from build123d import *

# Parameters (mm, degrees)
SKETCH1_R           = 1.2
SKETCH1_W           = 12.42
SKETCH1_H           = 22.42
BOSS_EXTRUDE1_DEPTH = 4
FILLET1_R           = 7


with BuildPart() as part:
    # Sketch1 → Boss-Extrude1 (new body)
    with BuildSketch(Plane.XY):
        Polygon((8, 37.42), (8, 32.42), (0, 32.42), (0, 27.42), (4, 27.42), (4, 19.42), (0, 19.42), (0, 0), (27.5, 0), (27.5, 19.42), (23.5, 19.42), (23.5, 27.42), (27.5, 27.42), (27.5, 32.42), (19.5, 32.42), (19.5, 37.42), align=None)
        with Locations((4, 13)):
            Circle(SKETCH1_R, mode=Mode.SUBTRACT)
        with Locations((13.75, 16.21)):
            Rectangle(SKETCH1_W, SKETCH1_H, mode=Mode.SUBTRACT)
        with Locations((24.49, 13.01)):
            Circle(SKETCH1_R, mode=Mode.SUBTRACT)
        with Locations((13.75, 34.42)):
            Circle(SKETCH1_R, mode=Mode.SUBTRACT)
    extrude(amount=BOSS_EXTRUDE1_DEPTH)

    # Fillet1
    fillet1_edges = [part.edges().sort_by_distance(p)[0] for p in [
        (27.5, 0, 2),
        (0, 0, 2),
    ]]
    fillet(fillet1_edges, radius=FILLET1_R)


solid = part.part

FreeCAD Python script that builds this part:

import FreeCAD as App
import Part
import Sketcher

V = App.Vector


def edges_at(feature, points):
    """Names of the edges that pass closest to the given points."""
    edges = feature.Shape.Edges
    near = lambda p: min(range(len(edges)), key=lambda i: edges[i].distToShape(Part.Vertex(*p))[0])
    return sorted({f"Edge{near(p) + 1}" for p in points})

doc = App.newDocument("Part")
body = doc.addObject("PartDesign::Body", "Body")

sketch1 = doc.addObject("Sketcher::SketchObject", "Sketch")
body.addObject(sketch1)
sketch1.AttachmentSupport = (doc.XY_Plane, [""])
sketch1.MapMode = "FlatFace"
sketch1.addGeometry(Part.LineSegment(V(8, 37.42, 0), V(8, 32.42, 0)), False)
sketch1.addGeometry(Part.LineSegment(V(8, 32.42, 0), V(0, 32.42, 0)), False)
sketch1.addGeometry(Part.LineSegment(V(0, 32.42, 0), V(0, 27.42, 0)), False)
sketch1.addGeometry(Part.LineSegment(V(0, 27.42, 0), V(4, 27.42, 0)), False)
sketch1.addGeometry(Part.LineSegment(V(4, 27.42, 0), V(4, 19.42, 0)), False)
sketch1.addGeometry(Part.LineSegment(V(4, 19.42, 0), V(0, 19.42, 0)), False)
sketch1.addGeometry(Part.LineSegment(V(0, 19.42, 0), V(0, 0, 0)), False)
sketch1.addGeometry(Part.LineSegment(V(0, 0, 0), V(27.5, 0, 0)), False)
sketch1.addGeometry(Part.LineSegment(V(27.5, 0, 0), V(27.5, 19.42, 0)), False)
sketch1.addGeometry(Part.LineSegment(V(27.5, 19.42, 0), V(23.5, 19.42, 0)), False)
sketch1.addGeometry(Part.LineSegment(V(23.5, 19.42, 0), V(23.5, 27.42, 0)), False)
sketch1.addGeometry(Part.LineSegment(V(23.5, 27.42, 0), V(27.5, 27.42, 0)), False)
sketch1.addGeometry(Part.LineSegment(V(27.5, 27.42, 0), V(27.5, 32.42, 0)), False)
sketch1.addGeometry(Part.LineSegment(V(27.5, 32.42, 0), V(19.5, 32.42, 0)), False)
sketch1.addGeometry(Part.LineSegment(V(19.5, 32.42, 0), V(19.5, 37.42, 0)), False)
sketch1.addGeometry(Part.LineSegment(V(19.5, 37.42, 0), V(8, 37.42, 0)), False)
sketch1.addGeometry(Part.Circle(V(4, 13, 0), V(0, 0, 1), 1.2), False)
sketch1.addGeometry(Part.LineSegment(V(19.96, 5, 0), V(7.54, 5, 0)), False)
sketch1.addGeometry(Part.LineSegment(V(7.54, 5, 0), V(7.54, 27.42, 0)), False)
sketch1.addGeometry(Part.LineSegment(V(7.54, 27.42, 0), V(19.96, 27.42, 0)), False)
sketch1.addGeometry(Part.LineSegment(V(19.96, 27.42, 0), V(19.96, 5, 0)), False)
sketch1.addGeometry(Part.Circle(V(24.49, 13.01, 0), V(0, 0, 1), 1.2), False)
sketch1.addGeometry(Part.Circle(V(13.75, 34.42, 0), V(0, 0, 1), 1.2), False)
sketch1.addConstraint(Sketcher.Constraint("Coincident", 0, 2, 1, 1))
sketch1.addConstraint(Sketcher.Constraint("Coincident", 1, 2, 2, 1))
sketch1.addConstraint(Sketcher.Constraint("Coincident", 2, 2, 3, 1))
sketch1.addConstraint(Sketcher.Constraint("Coincident", 3, 2, 4, 1))
sketch1.addConstraint(Sketcher.Constraint("Coincident", 4, 2, 5, 1))
sketch1.addConstraint(Sketcher.Constraint("Coincident", 5, 2, 6, 1))
sketch1.addConstraint(Sketcher.Constraint("Coincident", 6, 2, 7, 1))
sketch1.addConstraint(Sketcher.Constraint("Coincident", 7, 2, 8, 1))
sketch1.addConstraint(Sketcher.Constraint("Coincident", 8, 2, 9, 1))
sketch1.addConstraint(Sketcher.Constraint("Coincident", 9, 2, 10, 1))
sketch1.addConstraint(Sketcher.Constraint("Coincident", 10, 2, 11, 1))
sketch1.addConstraint(Sketcher.Constraint("Coincident", 11, 2, 12, 1))
sketch1.addConstraint(Sketcher.Constraint("Coincident", 12, 2, 13, 1))
sketch1.addConstraint(Sketcher.Constraint("Coincident", 13, 2, 14, 1))
sketch1.addConstraint(Sketcher.Constraint("Coincident", 14, 2, 15, 1))
sketch1.addConstraint(Sketcher.Constraint("Coincident", 15, 2, 0, 1))
sketch1.addConstraint(Sketcher.Constraint("Coincident", 17, 2, 18, 1))
sketch1.addConstraint(Sketcher.Constraint("Coincident", 18, 2, 19, 1))
sketch1.addConstraint(Sketcher.Constraint("Coincident", 19, 2, 20, 1))
sketch1.addConstraint(Sketcher.Constraint("Coincident", 20, 2, 17, 1))
sketch1.addConstraint(Sketcher.Constraint("Vertical", 0))
sketch1.addConstraint(Sketcher.Constraint("Horizontal", 1))
sketch1.addConstraint(Sketcher.Constraint("Vertical", 2))
sketch1.addConstraint(Sketcher.Constraint("Horizontal", 3))
sketch1.addConstraint(Sketcher.Constraint("Vertical", 4))
sketch1.addConstraint(Sketcher.Constraint("Horizontal", 5))
sketch1.addConstraint(Sketcher.Constraint("Vertical", 6))
sketch1.addConstraint(Sketcher.Constraint("Horizontal", 7))
sketch1.addConstraint(Sketcher.Constraint("Vertical", 8))
sketch1.addConstraint(Sketcher.Constraint("Horizontal", 9))
sketch1.addConstraint(Sketcher.Constraint("Vertical", 10))
sketch1.addConstraint(Sketcher.Constraint("Horizontal", 11))
sketch1.addConstraint(Sketcher.Constraint("Vertical", 12))
sketch1.addConstraint(Sketcher.Constraint("Horizontal", 13))
sketch1.addConstraint(Sketcher.Constraint("Vertical", 14))
sketch1.addConstraint(Sketcher.Constraint("Horizontal", 15))
sketch1.addConstraint(Sketcher.Constraint("Horizontal", 17))
sketch1.addConstraint(Sketcher.Constraint("Vertical", 18))
sketch1.addConstraint(Sketcher.Constraint("Horizontal", 19))
sketch1.addConstraint(Sketcher.Constraint("Vertical", 20))
sketch1.addConstraint(Sketcher.Constraint("Coincident", 6, 2, -1, 1))
sketch1.addConstraint(Sketcher.Constraint("Equal", 16, 21))
sketch1.addConstraint(Sketcher.Constraint("Equal", 21, 22))
sketch1.addConstraint(Sketcher.Constraint("PointOnObject", 1, 2, -2))
sketch1.addConstraint(Sketcher.Constraint("Horizontal", 5, 2, 8, 2))
sketch1.addConstraint(Sketcher.Constraint("Horizontal", 3, 2, 10, 2))
sketch1.addConstraint(Sketcher.Constraint("Horizontal", 1, 2, 12, 2))
sketch1.addConstraint(Sketcher.Constraint("Horizontal", 11, 2, 18, 2))
sketch1.addConstraint(Sketcher.Constraint("Vertical", 16, 3, 3, 2))
sketch1.addConstraint(Sketcher.Constraint("Vertical", 8, 2, 11, 2))
sketch1.addConstraint(Sketcher.Constraint("Equal", 5, 9))
sketch1.addConstraint(Sketcher.Constraint("Equal", 1, 13))
sketch1.addConstraint(Sketcher.Constraint("Equal", 0, 2))
sketch1.addConstraint(Sketcher.Constraint("Equal", 13, 4))
sketch1.addConstraint(Sketcher.Constraint("Diameter", 16, 2.4))
sketch1.addConstraint(Sketcher.Constraint("DistanceX", 1, 2, 1, 1, 8.0))
sketch1.addConstraint(Sketcher.Constraint("DistanceX", 3, 1, 3, 2, 4.0))
sketch1.addConstraint(Sketcher.Constraint("DistanceY", 0, 2, 0, 1, 5.0))
sketch1.addConstraint(Sketcher.Constraint("DistanceX", 7, 1, 7, 2, 27.5))
sketch1.addConstraint(Sketcher.Constraint("DistanceY", -1, 1, 16, 3, 13.0))
sketch1.addConstraint(Sketcher.Constraint("DistanceY", -1, 1, 17, 2, 5.0))
sketch1.addConstraint(Sketcher.Constraint("DistanceY", 0, 2, 22, 3, 2.0))
sketch1.addConstraint(Sketcher.Constraint("DistanceX", 17, 2, 17, 1, 12.42))
sketch1.addConstraint(Sketcher.Constraint("DistanceY", 6, 2, 6, 1, 19.42))
sketch1.addConstraint(Sketcher.Constraint("DistanceX", -1, 1, 21, 3, 24.49))
sketch1.addConstraint(Sketcher.Constraint("DistanceY", -1, 1, 21, 3, 13.01))
sketch1.addConstraint(Sketcher.Constraint("DistanceX", -1, 1, 22, 3, 13.75))
sketch1.addConstraint(Sketcher.Constraint("DistanceX", -1, 1, 17, 2, 7.54))
pad1 = doc.addObject("PartDesign::Pad", "Pad")
body.addObject(pad1)
pad1.Profile = sketch1
pad1.Length = 4
doc.recompute()

fillet = doc.addObject("PartDesign::Fillet", "Fillet")
body.addObject(fillet)
fillet.Base = (pad1, edges_at(pad1, [(27.5, 0, 2), (0, 0, 2)]))
fillet.Radius = 7

doc.recompute()
